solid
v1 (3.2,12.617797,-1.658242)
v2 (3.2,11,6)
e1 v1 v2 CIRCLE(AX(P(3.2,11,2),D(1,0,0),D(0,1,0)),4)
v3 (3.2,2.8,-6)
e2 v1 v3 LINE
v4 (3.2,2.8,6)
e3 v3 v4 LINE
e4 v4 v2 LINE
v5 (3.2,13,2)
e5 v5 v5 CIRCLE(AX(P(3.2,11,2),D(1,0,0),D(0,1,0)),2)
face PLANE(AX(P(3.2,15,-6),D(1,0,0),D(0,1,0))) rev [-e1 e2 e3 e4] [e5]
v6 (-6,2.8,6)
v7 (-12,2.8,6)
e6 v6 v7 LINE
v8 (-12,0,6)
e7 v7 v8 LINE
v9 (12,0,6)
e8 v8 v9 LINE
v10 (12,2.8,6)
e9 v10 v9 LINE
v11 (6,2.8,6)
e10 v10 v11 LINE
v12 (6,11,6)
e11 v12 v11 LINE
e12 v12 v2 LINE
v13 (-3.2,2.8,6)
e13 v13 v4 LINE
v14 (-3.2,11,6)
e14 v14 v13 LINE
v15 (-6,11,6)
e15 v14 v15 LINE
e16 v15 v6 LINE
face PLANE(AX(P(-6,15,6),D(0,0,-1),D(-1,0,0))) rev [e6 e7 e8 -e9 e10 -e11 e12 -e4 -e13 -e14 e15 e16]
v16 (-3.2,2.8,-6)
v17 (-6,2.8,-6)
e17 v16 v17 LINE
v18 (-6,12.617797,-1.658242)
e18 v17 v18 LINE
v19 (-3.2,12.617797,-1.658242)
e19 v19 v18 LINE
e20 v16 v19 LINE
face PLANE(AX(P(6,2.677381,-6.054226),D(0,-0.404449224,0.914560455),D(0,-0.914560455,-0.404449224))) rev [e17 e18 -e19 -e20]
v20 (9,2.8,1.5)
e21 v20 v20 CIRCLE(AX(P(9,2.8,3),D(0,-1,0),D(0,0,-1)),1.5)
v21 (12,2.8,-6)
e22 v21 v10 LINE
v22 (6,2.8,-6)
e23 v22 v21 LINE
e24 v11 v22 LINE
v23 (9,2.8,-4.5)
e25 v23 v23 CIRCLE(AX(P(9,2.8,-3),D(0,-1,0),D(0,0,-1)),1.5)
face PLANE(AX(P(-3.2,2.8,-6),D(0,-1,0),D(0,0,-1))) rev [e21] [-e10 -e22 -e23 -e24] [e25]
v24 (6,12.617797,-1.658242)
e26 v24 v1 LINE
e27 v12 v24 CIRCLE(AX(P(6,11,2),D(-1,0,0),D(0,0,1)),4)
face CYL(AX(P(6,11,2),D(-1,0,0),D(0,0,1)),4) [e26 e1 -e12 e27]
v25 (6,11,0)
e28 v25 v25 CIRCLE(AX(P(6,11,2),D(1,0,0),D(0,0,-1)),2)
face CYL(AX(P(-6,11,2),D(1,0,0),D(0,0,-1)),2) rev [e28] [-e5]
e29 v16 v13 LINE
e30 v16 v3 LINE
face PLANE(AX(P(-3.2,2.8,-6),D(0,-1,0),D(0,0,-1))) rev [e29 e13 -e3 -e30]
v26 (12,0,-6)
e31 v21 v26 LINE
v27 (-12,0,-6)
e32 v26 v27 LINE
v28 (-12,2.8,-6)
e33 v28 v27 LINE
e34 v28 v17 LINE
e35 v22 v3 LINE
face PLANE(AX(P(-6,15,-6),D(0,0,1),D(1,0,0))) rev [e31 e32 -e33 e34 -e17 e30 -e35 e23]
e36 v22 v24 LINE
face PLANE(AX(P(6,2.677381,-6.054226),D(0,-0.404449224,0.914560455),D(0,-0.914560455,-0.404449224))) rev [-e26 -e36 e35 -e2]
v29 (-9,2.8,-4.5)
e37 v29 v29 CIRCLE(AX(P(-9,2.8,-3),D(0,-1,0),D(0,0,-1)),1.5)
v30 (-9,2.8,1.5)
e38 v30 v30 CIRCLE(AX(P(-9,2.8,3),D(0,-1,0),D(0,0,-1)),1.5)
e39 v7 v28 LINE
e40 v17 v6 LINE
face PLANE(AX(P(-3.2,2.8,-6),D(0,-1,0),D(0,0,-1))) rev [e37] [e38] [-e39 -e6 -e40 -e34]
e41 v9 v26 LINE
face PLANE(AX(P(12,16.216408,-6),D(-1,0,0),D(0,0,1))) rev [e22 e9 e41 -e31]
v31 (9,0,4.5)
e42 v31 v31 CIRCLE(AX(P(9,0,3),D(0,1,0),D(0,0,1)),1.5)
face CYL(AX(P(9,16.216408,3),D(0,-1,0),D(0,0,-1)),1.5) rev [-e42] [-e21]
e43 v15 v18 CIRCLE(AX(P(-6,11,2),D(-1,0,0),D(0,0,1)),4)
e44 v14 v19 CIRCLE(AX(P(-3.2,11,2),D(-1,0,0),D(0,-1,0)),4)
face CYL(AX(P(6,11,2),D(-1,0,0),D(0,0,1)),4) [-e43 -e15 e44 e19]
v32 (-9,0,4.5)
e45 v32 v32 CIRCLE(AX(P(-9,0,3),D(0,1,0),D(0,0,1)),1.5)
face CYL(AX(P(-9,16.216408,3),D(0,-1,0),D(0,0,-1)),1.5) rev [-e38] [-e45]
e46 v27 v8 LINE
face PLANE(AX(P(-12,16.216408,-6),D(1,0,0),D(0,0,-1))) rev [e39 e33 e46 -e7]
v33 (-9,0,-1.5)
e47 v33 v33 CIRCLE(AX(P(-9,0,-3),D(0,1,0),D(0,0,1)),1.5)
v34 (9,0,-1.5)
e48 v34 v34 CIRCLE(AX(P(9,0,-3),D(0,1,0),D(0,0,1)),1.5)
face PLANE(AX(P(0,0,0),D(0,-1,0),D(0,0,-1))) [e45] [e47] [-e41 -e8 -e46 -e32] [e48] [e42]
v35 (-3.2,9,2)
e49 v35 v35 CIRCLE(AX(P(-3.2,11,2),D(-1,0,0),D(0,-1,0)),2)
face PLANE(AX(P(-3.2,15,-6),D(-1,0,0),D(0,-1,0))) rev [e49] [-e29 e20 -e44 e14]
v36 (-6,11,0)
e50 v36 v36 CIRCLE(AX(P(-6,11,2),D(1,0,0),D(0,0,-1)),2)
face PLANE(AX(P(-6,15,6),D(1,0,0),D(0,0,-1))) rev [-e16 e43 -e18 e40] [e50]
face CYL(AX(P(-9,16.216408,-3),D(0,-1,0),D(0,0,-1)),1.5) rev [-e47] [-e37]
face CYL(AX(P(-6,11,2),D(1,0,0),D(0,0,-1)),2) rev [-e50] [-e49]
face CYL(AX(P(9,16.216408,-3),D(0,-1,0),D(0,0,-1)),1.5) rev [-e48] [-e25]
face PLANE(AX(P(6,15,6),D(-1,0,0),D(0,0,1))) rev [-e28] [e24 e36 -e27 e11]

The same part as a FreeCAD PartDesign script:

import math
import FreeCAD as App
import Part
import Sketcher
from FreeCAD import Vector
Q = App.Units.Quantity


def add_polygon(sketch, points):
    """Adds a closed chain of lines whose ends are joined by coincident constraints."""
    first, n = sketch.GeometryCount, len(points)
    for a, b in zip(points, points[1:] + points[:1]):
        sketch.addGeometry(Part.LineSegment(App.Vector(*a, 0), App.Vector(*b, 0)), False)
    for i in range(n):
        sketch.addConstraint(Sketcher.Constraint("Coincident", first + i, 2, first + (i + 1) % n, 1))

doc = App.newDocument("Part")
body = doc.addObject("PartDesign::Body", "Body")

# Sketch on XZ plane
sketch1 = body.newObject("Sketcher::SketchObject", "Sketch")
sketch1.AttachmentSupport = (doc.getObject("XZ_Plane"), [""])
sketch1.MapMode = "FlatFace"
add_polygon(sketch1, [(-6, -6), (-6, 6), (6, 6), (6, -6)])  # lines 0-3
sketch1.addConstraint(Sketcher.Constraint("Vertical", 0))
sketch1.addConstraint(Sketcher.Constraint("Horizontal", 1))
sketch1.addConstraint(Sketcher.Constraint("Vertical", 2))
sketch1.addConstraint(Sketcher.Constraint("Horizontal", 3))
sketch1.addConstraint(Sketcher.Constraint("Symmetric", 0, 2, 2, 2, -1, 1))
sketch1.addConstraint(Sketcher.Constraint("Equal", 3, 0))
sketch1.addConstraint(Sketcher.Constraint("DistanceX", 1, 1, 1, 2, Q("12 mm")))
pad1 = body.newObject("PartDesign::Pad", "Pad")
pad1.Profile = sketch1
pad1.Length = 15
pad1.Reversed = True

# Sketch on XY plane
sketch2 = body.newObject("Sketcher::SketchObject", "Sketch001")
sketch2.AttachmentSupport = (doc.getObject("XY_Plane"), [""])
sketch2.MapMode = "FlatFace"
sketch2.AttachmentOffset = App.Placement(Vector(0, 0, 6), App.Rotation())
add_polygon(sketch2, [(-3.2, 15), (-3.2, 2.8), (3.2, 2.8), (3.2, 15)])  # lines 0-3
sketch2.addConstraint(Sketcher.Constraint("Vertical", 0))
sketch2.addConstraint(Sketcher.Constraint("Horizontal", 1))
sketch2.addConstraint(Sketcher.Constraint("Vertical", 2))
sketch2.addConstraint(Sketcher.Constraint("Horizontal", 3))
sketch2.addConstraint(Sketcher.Constraint("DistanceX", 1, 1, 1, 2, Q("6.4 mm")))
sketch2.addConstraint(Sketcher.Constraint("DistanceY", 0, 2, 0, 1, Q("12.2 mm")))
sketch2.addConstraint(Sketcher.Constraint("DistanceY", -1, 1, 2, 2, Q("15 mm")))
sketch2.addConstraint(Sketcher.Constraint("DistanceX", 0, 2, -1, 1, Q("3.2 mm")))
pocket1 = body.newObject("PartDesign::Pocket", "Pocket")
pocket1.Profile = sketch2
pocket1.Length = 12

# Sketch on YZ plane
sketch3 = body.newObject("Sketcher::SketchObject", "Sketch002")
sketch3.AttachmentSupport = (doc.getObject("YZ_Plane"), [""])
sketch3.MapMode = "FlatFace"
sketch3.AttachmentOffset = App.Placement(Vector(0, 0, -6), App.Rotation())
sketch3.addGeometry(Part.LineSegment(Vector(15, -6, 0), Vector(2.8, -6, 0)), False)
sketch3.addGeometry(Part.LineSegment(Vector(2.8, -6, 0), Vector(12.617797, -1.658242, 0)), False)
sketch3.addGeometry(Part.ArcOfCircle(Part.Circle(Vector(11, 2, 0), Vector(0, 0, 1), 4), math.radians(-66.143383), math.radians(0)), False)
sketch3.addGeometry(Part.LineSegment(Vector(15, 2, 0), Vector(15, -6, 0)), False)
sketch3.addGeometry(Part.ArcOfCircle(Part.Circle(Vector(11, 2, 0), Vector(0, 0, 1), 4), math.radians(0), math.radians(90)), False)
sketch3.addGeometry(Part.LineSegment(Vector(11, 6, 0), Vector(15, 6, 0)), False)
sketch3.addGeometry(Part.LineSegment(Vector(15, 6, 0), Vector(15, 2, 0)), False)
sketch3.addConstraint(Sketcher.Constraint("Coincident", 0, 2, 1, 1))
sketch3.addConstraint(Sketcher.Constraint("Tangent", 1, 2, 2, 1))
sketch3.addConstraint(Sketcher.Constraint("Tangent", 2, 2, 3, 1))
sketch3.addConstraint(Sketcher.Constraint("Coincident", 3, 2, 0, 1))
sketch3.addConstraint(Sketcher.Constraint("Tangent", 4, 2, 5, 1))
sketch3.addConstraint(Sketcher.Constraint("Coincident", 5, 2, 6, 1))
sketch3.addConstraint(Sketcher.Constraint("Tangent", 6, 2, 4, 1))
sketch3.addConstraint(Sketcher.Constraint("Horizontal", 0))
sketch3.addConstraint(Sketcher.Constraint("Vertical", 3))
sketch3.addConstraint(Sketcher.Constraint("Horizontal", 5))
sketch3.addConstraint(Sketcher.Constraint("Vertical", 6))
sketch3.addConstraint(Sketcher.Constraint("Coincident", 4, 3, 2, 3))
sketch3.addConstraint(Sketcher.Constraint("Equal", 2, 4))
sketch3.addConstraint(Sketcher.Constraint("Radius", 2, Q("4 mm")))
sketch3.addConstraint(Sketcher.Constraint("DistanceY", 3, 2, 3, 1, Q("8 mm")))
sketch3.addConstraint(Sketcher.Constraint("DistanceX", 0, 2, 0, 1, Q("12.2 mm")))
sketch3.addConstraint(Sketcher.Constraint("DistanceX", -1, 1, 2, 3, Q("11 mm")))
sketch3.addConstraint(Sketcher.Constraint("DistanceY", -1, 1, 2, 3, Q("2 mm")))
pocket2 = body.newObject("PartDesign::Pocket", "Pocket001")
pocket2.Profile = sketch3
pocket2.Length = 12
pocket2.Reversed = True

# Sketch on YZ plane
sketch4 = body.newObject("Sketcher::SketchObject", "Sketch003")
sketch4.AttachmentSupport = (doc.getObject("YZ_Plane"), [""])
sketch4.MapMode = "FlatFace"
sketch4.AttachmentOffset = App.Placement(Vector(0, 0, 6), App.Rotation())
sketch4.addGeometry(Part.Circle(Vector(11, 2, 0), Vector(0, 0, 1), 2), False)
sketch4.addConstraint(Sketcher.Constraint("Diameter", 0, Q("4 mm")))
sketch4.addConstraint(Sketcher.Constraint("DistanceX", -1, 1, 0, 3, Q("11 mm")))
sketch4.addConstraint(Sketcher.Constraint("DistanceY", -1, 1, 0, 3, Q("2 mm")))
pocket3 = body.newObject("PartDesign::Pocket", "Pocket002")
pocket3.Profile = sketch4
pocket3.Type = "ThroughAll"

# Sketch on XZ plane
sketch5 = body.newObject("Sketcher::SketchObject", "Sketch004")
sketch5.AttachmentSupport = (doc.getObject("XZ_Plane"), [""])
sketch5.MapMode = "FlatFace"
add_polygon(sketch5, [(-12, -6), (-12, 6), (-6, 6), (-6, -6)])  # lines 0-3
sketch5.addGeometry(Part.Circle(Vector(-9, 3, 0), Vector(0, 0, 1), 1.5), False)  # 4
sketch5.addGeometry(Part.Circle(Vector(-9, -3, 0), Vector(0, 0, 1), 1.5), False)  # 5
add_polygon(sketch5, [(6, -6), (6, 6), (12, 6), (12, -6)])  # lines 6-9
sketch5.addGeometry(Part.Circle(Vector(9, 3, 0), Vector(0, 0, 1), 1.5), False)  # 10
sketch5.addGeometry(Part.Circle(Vector(9, -3, 0), Vector(0, 0, 1), 1.5), False)  # 11
sketch5.addConstraint(Sketcher.Constraint("Vertical", 0))
sketch5.addConstraint(Sketcher.Constraint("Horizontal", 1))
sketch5.addConstraint(Sketcher.Constraint("Vertical", 2))
sketch5.addConstraint(Sketcher.Constraint("Horizontal", 3))
sketch5.addConstraint(Sketcher.Constraint("Vertical", 6))
sketch5.addConstraint(Sketcher.Constraint("Horizontal", 7))
sketch5.addConstraint(Sketcher.Constraint("Vertical", 8))
sketch5.addConstraint(Sketcher.Constraint("Horizontal", 9))
sketch5.addConstraint(Sketcher.Constraint("Equal", 4, 5))
sketch5.addConstraint(Sketcher.Constraint("Equal", 5, 10))
sketch5.addConstraint(Sketcher.Constraint("Equal", 10, 11))
sketch5.addConstraint(Sketcher.Constraint("Symmetric", 5, 3, 10, 3, -1, 1))
sketch5.addConstraint(Sketcher.Constraint("Symmetric", 4, 3, 11, 3, -1, 1))
sketch5.addConstraint(Sketcher.Constraint("Symmetric", 2, 2, 6, 2, -1, 1))
sketch5.addConstraint(Sketcher.Constraint("Symmetric", 0, 2, 8, 2, -1, 1))
sketch5.addConstraint(Sketcher.Constraint("Symmetric", 4, 3, 10, 3, -2))
sketch5.addConstraint(Sketcher.Constraint("Horizontal", 1, 2, 6, 2))
sketch5.addConstraint(Sketcher.Constraint("Diameter", 4, Q("3 mm")))
sketch5.addConstraint(Sketcher.Constraint("DistanceX", 1, 1, 1, 2, Q("6 mm")))
sketch5.addConstraint(Sketcher.Constraint("DistanceY", 0, 1, 0, 2, Q("12 mm")))
sketch5.addConstraint(Sketcher.Constraint("DistanceX", 4, 3, -1, 1, Q("9 mm")))
sketch5.addConstraint(Sketcher.Constraint("DistanceY", -1, 1, 4, 3, Q("3 mm")))
sketch5.addConstraint(Sketcher.Constraint("DistanceX", 0, 2, -1, 1, Q("12 mm")))
pad2 = body.newObject("PartDesign::Pad", "Pad001")
pad2.Profile = sketch5
pad2.Length = 2.8
pad2.Reversed = True

doc.recompute()
